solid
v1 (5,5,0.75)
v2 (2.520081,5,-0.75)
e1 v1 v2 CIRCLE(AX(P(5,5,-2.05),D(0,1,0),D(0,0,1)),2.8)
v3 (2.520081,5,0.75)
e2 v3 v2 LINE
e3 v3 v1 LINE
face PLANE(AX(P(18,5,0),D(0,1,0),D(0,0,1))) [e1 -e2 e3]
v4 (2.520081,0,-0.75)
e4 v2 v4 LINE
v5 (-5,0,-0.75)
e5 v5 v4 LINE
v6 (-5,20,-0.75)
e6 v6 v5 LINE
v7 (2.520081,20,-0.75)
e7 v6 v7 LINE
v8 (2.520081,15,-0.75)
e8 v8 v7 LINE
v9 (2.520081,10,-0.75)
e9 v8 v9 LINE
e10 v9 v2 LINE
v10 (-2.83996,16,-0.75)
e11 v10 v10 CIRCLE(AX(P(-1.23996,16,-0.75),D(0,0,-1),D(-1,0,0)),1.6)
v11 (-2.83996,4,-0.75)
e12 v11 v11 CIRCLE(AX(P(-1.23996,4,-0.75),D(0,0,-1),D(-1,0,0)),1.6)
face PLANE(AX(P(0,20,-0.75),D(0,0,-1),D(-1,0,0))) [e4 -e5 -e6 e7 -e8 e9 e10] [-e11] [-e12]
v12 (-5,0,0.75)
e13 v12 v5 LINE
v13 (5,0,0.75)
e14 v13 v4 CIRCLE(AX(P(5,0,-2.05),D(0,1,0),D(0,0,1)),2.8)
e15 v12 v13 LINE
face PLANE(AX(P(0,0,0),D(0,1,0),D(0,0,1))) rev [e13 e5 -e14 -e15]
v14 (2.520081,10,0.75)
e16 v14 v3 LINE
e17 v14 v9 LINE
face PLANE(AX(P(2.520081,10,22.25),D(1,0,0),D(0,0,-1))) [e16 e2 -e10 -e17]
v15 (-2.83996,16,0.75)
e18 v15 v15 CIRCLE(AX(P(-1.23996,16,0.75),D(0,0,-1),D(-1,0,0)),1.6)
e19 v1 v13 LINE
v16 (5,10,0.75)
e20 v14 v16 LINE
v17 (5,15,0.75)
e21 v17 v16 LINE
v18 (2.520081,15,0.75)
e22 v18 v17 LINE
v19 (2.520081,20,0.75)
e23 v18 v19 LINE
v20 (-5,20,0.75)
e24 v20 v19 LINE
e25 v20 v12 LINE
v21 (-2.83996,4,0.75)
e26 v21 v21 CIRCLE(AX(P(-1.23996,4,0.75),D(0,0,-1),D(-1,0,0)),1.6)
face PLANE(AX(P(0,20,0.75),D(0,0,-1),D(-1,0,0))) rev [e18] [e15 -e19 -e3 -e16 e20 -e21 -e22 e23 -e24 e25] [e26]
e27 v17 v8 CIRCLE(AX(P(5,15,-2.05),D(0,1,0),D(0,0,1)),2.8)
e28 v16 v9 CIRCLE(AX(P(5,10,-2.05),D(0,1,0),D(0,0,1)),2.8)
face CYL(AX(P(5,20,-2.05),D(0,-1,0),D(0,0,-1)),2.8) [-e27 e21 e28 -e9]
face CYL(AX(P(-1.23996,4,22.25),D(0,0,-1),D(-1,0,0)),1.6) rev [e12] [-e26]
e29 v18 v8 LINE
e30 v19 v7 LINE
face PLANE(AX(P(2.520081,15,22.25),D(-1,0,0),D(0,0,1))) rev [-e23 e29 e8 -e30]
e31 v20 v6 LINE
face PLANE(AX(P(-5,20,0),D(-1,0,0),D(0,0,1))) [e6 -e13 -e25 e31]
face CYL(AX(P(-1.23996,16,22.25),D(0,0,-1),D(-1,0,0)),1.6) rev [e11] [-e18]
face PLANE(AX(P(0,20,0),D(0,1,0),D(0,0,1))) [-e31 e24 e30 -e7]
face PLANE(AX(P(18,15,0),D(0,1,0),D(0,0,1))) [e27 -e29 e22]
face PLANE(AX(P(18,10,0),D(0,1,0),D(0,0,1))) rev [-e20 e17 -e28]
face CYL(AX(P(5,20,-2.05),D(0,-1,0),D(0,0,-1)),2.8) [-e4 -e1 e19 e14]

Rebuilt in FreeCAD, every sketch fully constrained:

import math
import FreeCAD as App
import Part
import Sketcher
from FreeCAD import Vector

doc = App.newDocument("Part")
body = doc.addObject("PartDesign::Body", "Body")

# Sketch on XZ plane
sketch1 = body.newObject("Sketcher::SketchObject", "Sketch")
sketch1.AttachmentSupport = (doc.getObject("XZ_Plane"), [""])
sketch1.MapMode = "FlatFace"
sketch1.addGeometry(Part.ArcOfCircle(Part.Circle(Vector(5, -2.05, 0), Vector(0, 0, 1), 2.8), math.radians(0), math.radians(90)), False)
sketch1.addGeometry(Part.ArcOfCircle(Part.Circle(Vector(5, -2.05, 0), Vector(0, 0, 1), 2.8), math.radians(152.335996), math.radians(360)), False)
sketch1.addGeometry(Part.LineSegment(Vector(2.520081, -0.75, 0), Vector(-5, -0.75, 0)), False)
sketch1.addGeometry(Part.LineSegment(Vector(-5, -0.75, 0), Vector(-5, 0.75, 0)), False)
sketch1.addGeometry(Part.LineSegment(Vector(-5, 0.75, 0), Vector(5, 0.75, 0)), False)
sketch1.addConstraint(Sketcher.Constraint("Tangent", 0, 1, 1, 2))
sketch1.addConstraint(Sketcher.Constraint("Coincident", 1, 1, 2, 1))
sketch1.addConstraint(Sketcher.Constraint("Coincident", 2, 2, 3, 1))
sketch1.addConstraint(Sketcher.Constraint("Coincident", 3, 2, 4, 1))
sketch1.addConstraint(Sketcher.Constraint("Tangent", 4, 2, 0, 2))
sketch1.addConstraint(Sketcher.Constraint("Horizontal", 2))
sketch1.addConstraint(Sketcher.Constraint("Vertical", 3))
sketch1.addConstraint(Sketcher.Constraint("Horizontal", 4))
sketch1.addConstraint(Sketcher.Constraint("Equal", 0, 1))
sketch1.addConstraint(Sketcher.Constraint("Symmetric", 2, 2, 4, 2, -1, 1))
sketch1.addConstraint(Sketcher.Constraint("Horizontal", 1, 3, 0, 1))
sketch1.addConstraint(Sketcher.Constraint("Radius", 0, 2.8))
sketch1.addConstraint(Sketcher.Constraint("DistanceX", 4, 1, 4, 2, 10.0))
sketch1.addConstraint(Sketcher.Constraint("DistanceY", 3, 1, 3, 2, 1.5))
pad1 = body.newObject("PartDesign::Pad", "Pad")
pad1.Profile = sketch1
pad1.Length = 20
pad1.Reversed = True

# Sketch on YZ plane
sketch2 = body.newObject("Sketcher::SketchObject", "Sketch001")
sketch2.AttachmentSupport = (doc.getObject("YZ_Plane"), [""])
sketch2.MapMode = "FlatFace"
sketch2.AttachmentOffset = App.Placement(Vector(0, 0, -5), App.Rotation())
sketch2.addGeometry(Part.LineSegment(Vector(20, -4.85, 0), Vector(15, -4.85, 0)), False)
sketch2.addGeometry(Part.LineSegment(Vector(15, -4.85, 0), Vector(15, -0.75, 0)), False)
sketch2.addGeometry(Part.LineSegment(Vector(15, -0.75, 0), Vector(20, -0.75, 0)), False)
sketch2.addGeometry(Part.LineSegment(Vector(20, -0.75, 0), Vector(20, -4.85, 0)), False)
sketch2.addGeometry(Part.LineSegment(Vector(10, -4.85, 0), Vector(5, -4.85, 0)), False)
sketch2.addGeometry(Part.LineSegment(Vector(5, -4.85, 0), Vector(5, -0.75, 0)), False)
sketch2.addGeometry(Part.LineSegment(Vector(5, -0.75, 0), Vector(10, -0.75, 0)), False)
sketch2.addGeometry(Part.LineSegment(Vector(10, -0.75, 0), Vector(10, -4.85, 0)), False)
sketch2.addConstraint(Sketcher.Constraint("Coincident", 0, 2, 1, 1))
sketch2.addConstraint(Sketcher.Constraint("Coincident", 1, 2, 2, 1))
sketch2.addConstraint(Sketcher.Constraint("Coincident", 2, 2, 3, 1))
sketch2.addConstraint(Sketcher.Constraint("Coincident", 3, 2, 0, 1))
sketch2.addConstraint(Sketcher.Constraint("Coincident", 4, 2, 5, 1))
sketch2.addConstraint(Sketcher.Constraint("Coincident", 5, 2, 6, 1))
sketch2.addConstraint(Sketcher.Constraint("Coincident", 6, 2, 7, 1))
sketch2.addConstraint(Sketcher.Constraint("Coincident", 7, 2, 4, 1))
sketch2.addConstraint(Sketcher.Constraint("Horizontal", 0))
sketch2.addConstraint(Sketcher.Constraint("Vertical", 1))
sketch2.addConstraint(Sketcher.Constraint("Horizontal", 2))
sketch2.addConstraint(Sketcher.Constraint("Vertical", 3))
sketch2.addConstraint(Sketcher.Constraint("Horizontal", 4))
sketch2.addConstraint(Sketcher.Constraint("Vertical", 5))
sketch2.addConstraint(Sketcher.Constraint("Horizontal", 6))
sketch2.addConstraint(Sketcher.Constraint("Vertical", 7))
sketch2.addConstraint(Sketcher.Constraint("Horizontal", 3, 2, 4, 2))
sketch2.addConstraint(Sketcher.Constraint("Horizontal", 2, 2, 5, 2))
sketch2.addConstraint(Sketcher.Constraint("Equal", 2, 4))
sketch2.addConstraint(Sketcher.Constraint("DistanceX", 0, 2, 0, 1, 5.0))
sketch2.addConstraint(Sketcher.Constraint("DistanceY", 1, 1, 1, 2, 4.1))
sketch2.addConstraint(Sketcher.Constraint("DistanceX", -1, 1, 0, 2, 15.0))
sketch2.addConstraint(Sketcher.Constraint("DistanceX", -1, 1, 4, 2, 5.0))
sketch2.addConstraint(Sketcher.Constraint("DistanceY", 0, 2, -1, 1, 4.85))
pocket1 = body.newObject("PartDesign::Pocket", "Pocket")
pocket1.Profile = sketch2
pocket1.Length = 23
pocket1.Reversed = True

# Sketch on XY plane
sketch3 = body.newObject("Sketcher::SketchObject", "Sketch002")
sketch3.AttachmentSupport = (doc.getObject("XY_Plane"), [""])
sketch3.MapMode = "FlatFace"
sketch3.AttachmentOffset = App.Placement(Vector(0, 0, -0.75), App.Rotation())
sketch3.addGeometry(Part.LineSegment(Vector(7.479919, 10, 0), Vector(7.479919, 5, 0)), False)
sketch3.addGeometry(Part.LineSegment(Vector(7.479919, 5, 0), Vector(2.520081, 5, 0)), False)
sketch3.addGeometry(Part.LineSegment(Vector(2.520081, 5, 0), Vector(2.520081, 10, 0)), False)
sketch3.addGeometry(Part.LineSegment(Vector(2.520081, 10, 0), Vector(7.479919, 10, 0)), False)
sketch3.addGeometry(Part.LineSegment(Vector(7.479919, 20, 0), Vector(7.479919, 15, 0)), False)
sketch3.addGeometry(Part.LineSegment(Vector(7.479919, 15, 0), Vector(2.520081, 15, 0)), False)
sketch3.addGeometry(Part.LineSegment(Vector(2.520081, 15, 0), Vector(2.520081, 20, 0)), False)
sketch3.addGeometry(Part.LineSegment(Vector(2.520081, 20, 0), Vector(7.479919, 20, 0)), False)
sketch3.addConstraint(Sketcher.Constraint("Coincident", 0, 2, 1, 1))
sketch3.addConstraint(Sketcher.Constraint("Coincident", 1, 2, 2, 1))
sketch3.addConstraint(Sketcher.Constraint("Coincident", 2, 2, 3, 1))
sketch3.addConstraint(Sketcher.Constraint("Coincident", 3, 2, 0, 1))
sketch3.addConstraint(Sketcher.Constraint("Coincident", 4, 2, 5, 1))
sketch3.addConstraint(Sketcher.Constraint("Coincident", 5, 2, 6, 1))
sketch3.addConstraint(Sketcher.Constraint("Coincident", 6, 2, 7, 1))
sketch3.addConstraint(Sketcher.Constraint("Coincident", 7, 2, 4, 1))
sketch3.addConstraint(Sketcher.Constraint("Vertical", 0))
sketch3.addConstraint(Sketcher.Constraint("Horizontal", 1))
sketch3.addConstraint(Sketcher.Constraint("Vertical", 2))
sketch3.addConstraint(Sketcher.Constraint("Horizontal", 3))
sketch3.addConstraint(Sketcher.Constraint("Vertical", 4))
sketch3.addConstraint(Sketcher.Constraint("Horizontal", 5))
sketch3.addConstraint(Sketcher.Constraint("Vertical", 6))
sketch3.addConstraint(Sketcher.Constraint("Horizontal", 7))
sketch3.addConstraint(Sketcher.Constraint("Vertical", 3, 2, 4, 2))
sketch3.addConstraint(Sketcher.Constraint("Vertical", 2, 2, 5, 2))
sketch3.addConstraint(Sketcher.Constraint("Equal", 2, 4))
sketch3.addConstraint(Sketcher.Constraint("DistanceY", 0, 2, 0, 1, 5.0))
sketch3.addConstraint(Sketcher.Constraint("DistanceY", -1, 1, 0, 2, 5.0))
sketch3.addConstraint(Sketcher.Constraint("DistanceY", -1, 1, 4, 2, 15.0))
sketch3.addConstraint(Sketcher.Constraint("DistanceX", 1, 2, 1, 1, 4.959839))
sketch3.addConstraint(Sketcher.Constraint("DistanceX", -1, 1, 0, 2, 7.479919))
pocket2 = body.newObject("PartDesign::Pocket", "Pocket001")
pocket2.Profile = sketch3
pocket2.Length = 23
pocket2.Reversed = True

# Sketch on XY plane
sketch4 = body.newObject("Sketcher::SketchObject", "Sketch003")
sketch4.AttachmentSupport = (doc.getObject("XY_Plane"), [""])
sketch4.MapMode = "FlatFace"
sketch4.AttachmentOffset = App.Placement(Vector(0, 0, -0.75), App.Rotation())
sketch4.addGeometry(Part.Circle(Vector(-1.23996, 16, 0), Vector(0, 0, 1), 1.6), False)
sketch4.addGeometry(Part.Circle(Vector(-1.23996, 4, 0), Vector(0, 0, 1), 1.6), False)
sketch4.addConstraint(Sketcher.Constraint("Equal", 0, 1))
sketch4.addConstraint(Sketcher.Constraint("Vertical", 0, 3, 1, 3))
sketch4.addConstraint(Sketcher.Constraint("Diameter", 0, 3.2))
sketch4.addConstraint(Sketcher.Constraint("DistanceY", -1, 1, 0, 3, 16.0))
sketch4.addConstraint(Sketcher.Constraint("DistanceY", -1, 1, 1, 3, 4.0))
sketch4.addConstraint(Sketcher.Constraint("DistanceX", 0, 3, -1, 1, 1.23996))
pocket3 = body.newObject("PartDesign::Pocket", "Pocket002")
pocket3.Profile = sketch4
pocket3.Length = 23
pocket3.Reversed = True

doc.recompute()
